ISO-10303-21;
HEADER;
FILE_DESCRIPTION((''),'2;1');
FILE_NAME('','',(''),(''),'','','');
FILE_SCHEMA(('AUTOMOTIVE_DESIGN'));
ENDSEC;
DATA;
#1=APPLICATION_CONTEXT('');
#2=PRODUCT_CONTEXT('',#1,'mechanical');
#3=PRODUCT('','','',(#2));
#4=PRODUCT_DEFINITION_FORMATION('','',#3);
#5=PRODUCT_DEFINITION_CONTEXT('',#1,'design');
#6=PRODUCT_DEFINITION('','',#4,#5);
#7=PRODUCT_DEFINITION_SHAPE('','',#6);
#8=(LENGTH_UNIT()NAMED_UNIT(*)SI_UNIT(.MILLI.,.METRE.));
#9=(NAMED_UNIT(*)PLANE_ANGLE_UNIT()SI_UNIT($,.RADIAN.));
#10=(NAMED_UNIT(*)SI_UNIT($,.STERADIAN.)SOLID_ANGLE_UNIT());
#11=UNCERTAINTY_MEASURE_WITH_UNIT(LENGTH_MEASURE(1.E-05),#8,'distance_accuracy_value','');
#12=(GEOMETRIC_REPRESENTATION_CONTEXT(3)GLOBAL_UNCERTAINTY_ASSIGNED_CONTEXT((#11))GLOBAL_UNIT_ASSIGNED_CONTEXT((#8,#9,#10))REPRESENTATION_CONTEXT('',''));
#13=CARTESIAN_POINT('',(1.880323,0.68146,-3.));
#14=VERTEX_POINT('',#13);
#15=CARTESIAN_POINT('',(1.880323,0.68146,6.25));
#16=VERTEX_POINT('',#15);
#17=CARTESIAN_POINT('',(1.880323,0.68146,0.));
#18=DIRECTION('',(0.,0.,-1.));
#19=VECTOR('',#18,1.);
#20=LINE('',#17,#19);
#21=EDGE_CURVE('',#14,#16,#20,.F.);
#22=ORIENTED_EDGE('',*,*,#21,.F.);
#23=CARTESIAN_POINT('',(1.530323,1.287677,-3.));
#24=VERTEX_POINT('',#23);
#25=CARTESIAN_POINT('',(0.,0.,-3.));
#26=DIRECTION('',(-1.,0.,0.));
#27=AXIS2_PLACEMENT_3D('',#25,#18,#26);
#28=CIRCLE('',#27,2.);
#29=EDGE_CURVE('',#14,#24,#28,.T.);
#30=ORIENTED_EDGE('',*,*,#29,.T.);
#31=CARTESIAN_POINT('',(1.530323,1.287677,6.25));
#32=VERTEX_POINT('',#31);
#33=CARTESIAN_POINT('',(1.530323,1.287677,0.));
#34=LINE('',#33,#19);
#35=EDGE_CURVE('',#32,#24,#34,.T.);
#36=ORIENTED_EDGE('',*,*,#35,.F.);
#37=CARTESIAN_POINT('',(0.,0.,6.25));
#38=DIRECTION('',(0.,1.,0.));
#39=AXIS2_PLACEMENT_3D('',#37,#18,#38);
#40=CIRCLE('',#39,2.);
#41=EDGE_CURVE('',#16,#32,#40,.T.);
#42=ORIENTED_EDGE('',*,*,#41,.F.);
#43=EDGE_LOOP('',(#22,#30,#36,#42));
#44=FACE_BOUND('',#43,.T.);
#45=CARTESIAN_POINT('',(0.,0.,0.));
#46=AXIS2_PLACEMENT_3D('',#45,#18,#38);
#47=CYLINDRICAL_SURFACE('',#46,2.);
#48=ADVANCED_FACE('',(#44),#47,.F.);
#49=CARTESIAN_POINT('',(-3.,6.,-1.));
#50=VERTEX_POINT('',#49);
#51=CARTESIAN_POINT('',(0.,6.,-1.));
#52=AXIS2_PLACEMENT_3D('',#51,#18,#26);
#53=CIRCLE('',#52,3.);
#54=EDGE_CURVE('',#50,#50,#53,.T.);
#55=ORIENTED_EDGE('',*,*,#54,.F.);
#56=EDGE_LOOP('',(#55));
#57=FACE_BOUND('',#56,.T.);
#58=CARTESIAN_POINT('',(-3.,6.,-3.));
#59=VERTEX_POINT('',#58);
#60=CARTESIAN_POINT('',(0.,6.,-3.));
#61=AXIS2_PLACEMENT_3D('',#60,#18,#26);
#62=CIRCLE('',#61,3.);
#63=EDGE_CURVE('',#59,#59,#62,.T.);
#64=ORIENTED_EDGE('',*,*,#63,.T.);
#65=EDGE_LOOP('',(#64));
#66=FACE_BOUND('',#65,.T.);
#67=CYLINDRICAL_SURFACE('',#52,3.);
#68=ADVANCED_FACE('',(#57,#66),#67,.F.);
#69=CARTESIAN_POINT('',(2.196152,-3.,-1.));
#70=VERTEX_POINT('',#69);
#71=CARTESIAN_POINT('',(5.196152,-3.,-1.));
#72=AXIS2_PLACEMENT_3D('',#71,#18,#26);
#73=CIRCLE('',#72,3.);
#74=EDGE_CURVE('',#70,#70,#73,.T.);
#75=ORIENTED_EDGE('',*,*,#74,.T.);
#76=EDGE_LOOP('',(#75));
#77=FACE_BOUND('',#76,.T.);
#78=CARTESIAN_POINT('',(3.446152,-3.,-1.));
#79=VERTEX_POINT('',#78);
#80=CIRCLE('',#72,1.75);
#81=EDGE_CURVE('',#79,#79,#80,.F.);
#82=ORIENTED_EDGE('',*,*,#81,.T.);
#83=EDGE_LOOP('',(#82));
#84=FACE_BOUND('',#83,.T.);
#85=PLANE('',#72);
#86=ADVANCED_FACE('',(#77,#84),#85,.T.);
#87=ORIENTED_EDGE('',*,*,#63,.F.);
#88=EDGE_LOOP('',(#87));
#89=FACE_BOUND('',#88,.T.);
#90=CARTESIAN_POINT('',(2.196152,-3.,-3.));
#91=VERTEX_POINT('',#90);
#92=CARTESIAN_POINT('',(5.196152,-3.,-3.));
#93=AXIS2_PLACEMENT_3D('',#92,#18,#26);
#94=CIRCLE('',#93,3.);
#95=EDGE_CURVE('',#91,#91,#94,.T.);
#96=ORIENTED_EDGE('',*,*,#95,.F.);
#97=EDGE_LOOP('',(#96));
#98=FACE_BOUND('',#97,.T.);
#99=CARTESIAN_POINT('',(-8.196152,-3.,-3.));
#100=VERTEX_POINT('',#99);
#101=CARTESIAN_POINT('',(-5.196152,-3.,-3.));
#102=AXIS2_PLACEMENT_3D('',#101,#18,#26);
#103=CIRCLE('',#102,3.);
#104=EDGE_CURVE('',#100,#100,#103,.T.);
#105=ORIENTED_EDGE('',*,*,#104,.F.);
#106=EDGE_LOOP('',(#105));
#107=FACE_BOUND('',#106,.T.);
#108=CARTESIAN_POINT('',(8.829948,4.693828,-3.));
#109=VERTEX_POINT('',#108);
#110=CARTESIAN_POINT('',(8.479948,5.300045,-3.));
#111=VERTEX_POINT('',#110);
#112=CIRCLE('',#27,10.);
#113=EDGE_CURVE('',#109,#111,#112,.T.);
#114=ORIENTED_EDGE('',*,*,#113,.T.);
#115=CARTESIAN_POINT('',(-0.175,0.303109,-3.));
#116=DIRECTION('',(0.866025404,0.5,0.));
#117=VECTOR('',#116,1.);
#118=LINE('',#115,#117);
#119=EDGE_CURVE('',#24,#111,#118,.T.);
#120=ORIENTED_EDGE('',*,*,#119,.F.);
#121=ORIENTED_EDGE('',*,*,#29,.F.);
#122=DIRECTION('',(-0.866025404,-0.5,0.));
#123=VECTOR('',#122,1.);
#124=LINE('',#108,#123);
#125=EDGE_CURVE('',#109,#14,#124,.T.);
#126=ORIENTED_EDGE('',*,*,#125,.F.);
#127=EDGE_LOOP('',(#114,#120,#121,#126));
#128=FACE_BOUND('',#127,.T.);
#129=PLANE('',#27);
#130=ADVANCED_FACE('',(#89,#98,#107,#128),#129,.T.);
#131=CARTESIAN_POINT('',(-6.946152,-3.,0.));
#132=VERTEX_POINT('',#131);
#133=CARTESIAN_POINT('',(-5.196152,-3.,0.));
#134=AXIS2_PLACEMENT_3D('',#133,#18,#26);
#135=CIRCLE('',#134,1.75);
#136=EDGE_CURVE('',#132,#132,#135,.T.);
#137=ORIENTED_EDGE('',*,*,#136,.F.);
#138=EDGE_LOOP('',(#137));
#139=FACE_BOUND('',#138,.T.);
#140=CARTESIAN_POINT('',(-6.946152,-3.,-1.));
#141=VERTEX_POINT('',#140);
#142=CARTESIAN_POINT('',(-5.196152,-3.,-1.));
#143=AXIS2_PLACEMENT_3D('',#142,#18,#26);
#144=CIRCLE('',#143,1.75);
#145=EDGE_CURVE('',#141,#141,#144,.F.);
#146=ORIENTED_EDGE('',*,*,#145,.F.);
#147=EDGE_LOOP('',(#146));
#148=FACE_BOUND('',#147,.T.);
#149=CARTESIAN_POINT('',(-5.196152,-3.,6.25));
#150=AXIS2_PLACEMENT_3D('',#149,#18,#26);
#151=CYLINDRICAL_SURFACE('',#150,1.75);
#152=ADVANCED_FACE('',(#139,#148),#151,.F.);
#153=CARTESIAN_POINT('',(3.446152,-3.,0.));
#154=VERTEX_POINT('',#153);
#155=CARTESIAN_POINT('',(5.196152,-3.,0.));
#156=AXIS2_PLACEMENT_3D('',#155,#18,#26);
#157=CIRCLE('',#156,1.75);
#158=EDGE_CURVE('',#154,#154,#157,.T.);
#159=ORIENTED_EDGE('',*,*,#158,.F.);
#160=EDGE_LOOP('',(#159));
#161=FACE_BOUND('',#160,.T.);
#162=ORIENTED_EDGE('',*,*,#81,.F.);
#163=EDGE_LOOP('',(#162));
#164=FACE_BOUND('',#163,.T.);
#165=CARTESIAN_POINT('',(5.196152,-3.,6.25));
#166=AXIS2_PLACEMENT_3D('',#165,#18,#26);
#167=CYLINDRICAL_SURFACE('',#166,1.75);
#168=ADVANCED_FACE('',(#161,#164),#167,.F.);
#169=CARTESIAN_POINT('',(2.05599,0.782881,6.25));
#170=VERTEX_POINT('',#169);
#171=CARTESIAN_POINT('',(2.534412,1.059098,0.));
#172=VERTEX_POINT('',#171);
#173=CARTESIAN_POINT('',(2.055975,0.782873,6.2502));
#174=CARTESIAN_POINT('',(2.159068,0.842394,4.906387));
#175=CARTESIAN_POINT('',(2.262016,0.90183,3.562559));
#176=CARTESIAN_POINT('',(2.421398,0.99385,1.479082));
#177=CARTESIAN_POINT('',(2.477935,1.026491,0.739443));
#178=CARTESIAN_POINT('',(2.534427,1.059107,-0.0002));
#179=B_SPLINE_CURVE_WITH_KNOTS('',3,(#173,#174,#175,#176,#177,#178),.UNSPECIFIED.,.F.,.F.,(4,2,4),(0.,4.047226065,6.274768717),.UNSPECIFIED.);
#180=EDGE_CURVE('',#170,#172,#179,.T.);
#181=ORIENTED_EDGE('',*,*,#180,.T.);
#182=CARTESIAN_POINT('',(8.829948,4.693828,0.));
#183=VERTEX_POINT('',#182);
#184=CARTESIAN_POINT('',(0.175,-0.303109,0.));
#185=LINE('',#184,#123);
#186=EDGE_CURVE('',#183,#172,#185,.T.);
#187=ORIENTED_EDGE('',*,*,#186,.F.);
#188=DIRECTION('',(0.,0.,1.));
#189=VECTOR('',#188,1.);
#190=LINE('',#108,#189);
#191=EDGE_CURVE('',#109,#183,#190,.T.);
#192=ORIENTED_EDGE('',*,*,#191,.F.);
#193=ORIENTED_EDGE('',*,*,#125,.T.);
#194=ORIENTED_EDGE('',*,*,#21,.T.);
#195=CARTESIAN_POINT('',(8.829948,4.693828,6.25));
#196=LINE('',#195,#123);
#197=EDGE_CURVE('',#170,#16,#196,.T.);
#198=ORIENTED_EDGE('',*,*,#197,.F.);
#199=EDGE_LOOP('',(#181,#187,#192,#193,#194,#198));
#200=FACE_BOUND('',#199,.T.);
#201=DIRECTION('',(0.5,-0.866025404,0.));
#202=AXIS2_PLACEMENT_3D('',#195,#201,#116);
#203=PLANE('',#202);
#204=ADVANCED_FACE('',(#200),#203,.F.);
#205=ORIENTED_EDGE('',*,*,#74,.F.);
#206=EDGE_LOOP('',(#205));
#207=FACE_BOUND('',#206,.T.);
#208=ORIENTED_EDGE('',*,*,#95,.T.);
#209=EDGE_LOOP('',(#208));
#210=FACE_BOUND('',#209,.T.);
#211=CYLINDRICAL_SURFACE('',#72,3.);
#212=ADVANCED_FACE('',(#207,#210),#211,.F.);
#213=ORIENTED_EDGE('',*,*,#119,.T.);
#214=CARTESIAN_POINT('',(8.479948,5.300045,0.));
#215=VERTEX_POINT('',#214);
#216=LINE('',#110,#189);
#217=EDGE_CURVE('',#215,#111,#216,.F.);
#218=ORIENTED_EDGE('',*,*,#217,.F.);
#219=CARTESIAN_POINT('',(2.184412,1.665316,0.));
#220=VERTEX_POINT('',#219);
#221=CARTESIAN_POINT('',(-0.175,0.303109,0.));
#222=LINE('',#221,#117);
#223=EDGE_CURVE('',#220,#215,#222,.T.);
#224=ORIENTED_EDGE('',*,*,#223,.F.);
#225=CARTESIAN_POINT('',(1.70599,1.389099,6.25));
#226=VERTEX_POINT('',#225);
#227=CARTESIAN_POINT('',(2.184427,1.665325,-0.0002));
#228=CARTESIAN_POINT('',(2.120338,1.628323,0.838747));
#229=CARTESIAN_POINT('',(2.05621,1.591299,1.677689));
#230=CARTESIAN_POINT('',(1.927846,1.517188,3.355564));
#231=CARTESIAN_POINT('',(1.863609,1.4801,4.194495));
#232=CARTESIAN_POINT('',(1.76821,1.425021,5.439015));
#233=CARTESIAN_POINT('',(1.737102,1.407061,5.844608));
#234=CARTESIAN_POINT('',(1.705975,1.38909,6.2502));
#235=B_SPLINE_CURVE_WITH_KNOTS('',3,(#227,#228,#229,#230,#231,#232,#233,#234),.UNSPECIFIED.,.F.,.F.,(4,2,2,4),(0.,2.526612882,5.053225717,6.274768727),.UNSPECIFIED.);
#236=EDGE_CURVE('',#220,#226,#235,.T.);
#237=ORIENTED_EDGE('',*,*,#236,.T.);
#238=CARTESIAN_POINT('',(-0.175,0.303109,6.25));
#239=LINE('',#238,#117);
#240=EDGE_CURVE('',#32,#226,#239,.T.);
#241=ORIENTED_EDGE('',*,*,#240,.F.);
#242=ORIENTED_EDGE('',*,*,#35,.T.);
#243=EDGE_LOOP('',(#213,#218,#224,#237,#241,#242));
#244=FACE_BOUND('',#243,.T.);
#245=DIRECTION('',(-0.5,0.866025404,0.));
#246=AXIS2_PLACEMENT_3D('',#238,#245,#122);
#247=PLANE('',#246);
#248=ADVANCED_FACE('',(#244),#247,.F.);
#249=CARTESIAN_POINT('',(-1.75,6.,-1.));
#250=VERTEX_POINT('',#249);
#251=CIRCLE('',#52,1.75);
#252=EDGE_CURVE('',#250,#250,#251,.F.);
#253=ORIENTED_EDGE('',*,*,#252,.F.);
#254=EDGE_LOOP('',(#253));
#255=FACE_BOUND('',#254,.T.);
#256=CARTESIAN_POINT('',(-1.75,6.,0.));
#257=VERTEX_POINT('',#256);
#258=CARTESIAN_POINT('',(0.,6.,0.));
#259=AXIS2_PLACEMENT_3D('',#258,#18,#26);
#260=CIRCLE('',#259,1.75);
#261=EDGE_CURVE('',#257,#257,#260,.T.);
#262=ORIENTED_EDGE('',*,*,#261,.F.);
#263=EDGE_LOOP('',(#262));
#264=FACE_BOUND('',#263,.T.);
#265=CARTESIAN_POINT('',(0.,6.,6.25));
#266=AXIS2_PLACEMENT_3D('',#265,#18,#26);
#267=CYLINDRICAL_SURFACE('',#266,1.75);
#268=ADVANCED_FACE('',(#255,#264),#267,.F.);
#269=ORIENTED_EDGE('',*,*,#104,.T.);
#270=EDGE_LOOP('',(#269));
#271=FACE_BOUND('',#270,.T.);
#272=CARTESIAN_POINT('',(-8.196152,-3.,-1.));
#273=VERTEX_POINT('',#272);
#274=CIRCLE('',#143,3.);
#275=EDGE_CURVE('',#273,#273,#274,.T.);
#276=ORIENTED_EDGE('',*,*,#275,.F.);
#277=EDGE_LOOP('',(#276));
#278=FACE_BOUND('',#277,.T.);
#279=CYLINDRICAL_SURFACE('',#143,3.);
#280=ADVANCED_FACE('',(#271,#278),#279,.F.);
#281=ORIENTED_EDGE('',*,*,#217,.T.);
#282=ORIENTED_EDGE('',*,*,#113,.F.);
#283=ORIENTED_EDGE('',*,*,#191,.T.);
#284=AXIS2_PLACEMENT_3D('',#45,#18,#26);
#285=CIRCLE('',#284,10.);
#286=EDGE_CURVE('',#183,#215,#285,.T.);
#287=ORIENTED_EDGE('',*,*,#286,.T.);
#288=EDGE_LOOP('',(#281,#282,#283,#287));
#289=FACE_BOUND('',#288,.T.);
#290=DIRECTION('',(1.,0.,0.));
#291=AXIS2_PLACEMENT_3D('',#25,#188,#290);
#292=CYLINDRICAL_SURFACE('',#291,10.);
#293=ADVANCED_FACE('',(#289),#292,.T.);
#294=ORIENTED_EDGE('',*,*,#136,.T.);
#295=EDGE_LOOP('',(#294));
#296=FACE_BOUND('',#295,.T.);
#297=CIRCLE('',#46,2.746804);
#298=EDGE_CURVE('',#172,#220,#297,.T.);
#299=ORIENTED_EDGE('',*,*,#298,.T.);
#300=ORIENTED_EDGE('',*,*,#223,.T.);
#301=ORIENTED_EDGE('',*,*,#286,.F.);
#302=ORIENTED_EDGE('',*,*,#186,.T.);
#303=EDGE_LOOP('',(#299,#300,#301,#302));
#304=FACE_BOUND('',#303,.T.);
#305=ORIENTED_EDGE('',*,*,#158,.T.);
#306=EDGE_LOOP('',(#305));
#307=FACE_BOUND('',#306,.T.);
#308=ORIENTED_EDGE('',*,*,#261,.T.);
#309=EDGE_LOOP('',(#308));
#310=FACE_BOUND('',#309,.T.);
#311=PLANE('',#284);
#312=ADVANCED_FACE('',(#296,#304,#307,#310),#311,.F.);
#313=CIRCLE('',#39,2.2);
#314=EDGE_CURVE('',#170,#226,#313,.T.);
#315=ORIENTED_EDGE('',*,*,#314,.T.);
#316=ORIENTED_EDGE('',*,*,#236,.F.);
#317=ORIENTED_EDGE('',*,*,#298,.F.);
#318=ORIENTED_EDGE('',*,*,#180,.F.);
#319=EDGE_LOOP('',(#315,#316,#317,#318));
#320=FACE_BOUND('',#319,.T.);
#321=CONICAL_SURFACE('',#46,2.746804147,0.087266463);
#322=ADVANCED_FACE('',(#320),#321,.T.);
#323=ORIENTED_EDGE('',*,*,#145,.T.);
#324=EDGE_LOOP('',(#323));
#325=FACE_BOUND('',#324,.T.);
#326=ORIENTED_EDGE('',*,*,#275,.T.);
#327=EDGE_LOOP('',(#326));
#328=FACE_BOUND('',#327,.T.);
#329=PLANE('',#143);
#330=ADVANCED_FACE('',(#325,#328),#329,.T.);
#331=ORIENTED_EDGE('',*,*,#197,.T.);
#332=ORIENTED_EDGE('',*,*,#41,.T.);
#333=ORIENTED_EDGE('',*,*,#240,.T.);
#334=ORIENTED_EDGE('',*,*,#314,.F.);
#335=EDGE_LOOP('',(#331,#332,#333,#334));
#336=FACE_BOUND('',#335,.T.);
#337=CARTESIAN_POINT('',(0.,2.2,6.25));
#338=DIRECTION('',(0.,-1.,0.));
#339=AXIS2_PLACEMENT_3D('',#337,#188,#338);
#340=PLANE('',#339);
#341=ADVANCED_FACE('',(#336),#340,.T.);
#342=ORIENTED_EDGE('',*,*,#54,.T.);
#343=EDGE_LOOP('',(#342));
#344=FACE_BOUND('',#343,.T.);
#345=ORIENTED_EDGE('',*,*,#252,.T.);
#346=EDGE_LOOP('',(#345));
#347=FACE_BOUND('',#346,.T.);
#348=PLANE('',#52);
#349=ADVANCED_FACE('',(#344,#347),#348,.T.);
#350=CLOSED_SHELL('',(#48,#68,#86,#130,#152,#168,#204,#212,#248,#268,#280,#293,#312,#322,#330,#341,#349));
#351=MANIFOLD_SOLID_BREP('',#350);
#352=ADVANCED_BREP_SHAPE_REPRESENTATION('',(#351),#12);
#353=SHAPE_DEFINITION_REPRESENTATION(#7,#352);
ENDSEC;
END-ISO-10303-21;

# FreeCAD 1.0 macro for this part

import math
import FreeCAD as App
import Part
import Sketcher
from FreeCAD import Vector
Q = App.Units.Quantity


def add_polygon(sketch, points):
    """Adds a closed chain of lines whose ends are joined by coincident constraints."""
    first, n = sketch.GeometryCount, len(points)
    for a, b in zip(points, points[1:] + points[:1]):
        sketch.addGeometry(Part.LineSegment(App.Vector(*a, 0), App.Vector(*b, 0)), False)
    for i in range(n):
        sketch.addConstraint(Sketcher.Constraint("Coincident", first + i, 2, first + (i + 1) % n, 1))

doc = App.newDocument("Part")
params = doc.addObject("Spreadsheet::Sheet", "Params")
for row, (alias, value) in enumerate([
    ("sketch1_width", "0.2 mm"),
    ("sketch1_height", "6.25 mm"),
    ("revolution_angle", "360 deg"),
    ("sketch2_diameter", "20 mm"),
    ("sketch2_diameter2", "4 mm"),
    ("pad1_length", "3 mm"),
    ("sketch3_diameter", "3.5 mm"),
    ("sketch4_diameter", "6 mm"),
    ("pocket2_length", "2 mm"),
    ("sketch5_radius", "10 mm"),
    ("sketch5_length", "0.7 mm"),
], start=1):
    params.set(f"A{row}", alias)
    params.set(f"B{row}", "=" + value)
    params.setAlias(f"B{row}", alias)

body = doc.addObject("PartDesign::Body", "Body")

# Sketch on YZ plane
sketch1 = body.newObject("Sketcher::SketchObject", "Sketch")
sketch1.AttachmentSupport = (doc.getObject("YZ_Plane"), [""])
sketch1.MapMode = "FlatFace"
add_polygon(sketch1, [(2, 0), (2.75, 0), (2.2, 6.25), (2, 6.25)])  # lines 0-3
sketch1.addConstraint(Sketcher.Constraint("Horizontal", 0))
sketch1.addConstraint(Sketcher.Constraint("Horizontal", 2))
sketch1.addConstraint(Sketcher.Constraint("Vertical", 3))
sketch1.addConstraint(Sketcher.Constraint("PointOnObject", 0, 2, -1))
sketch1.addConstraint(Sketcher.Constraint("Angle", 1, Q("95 deg")))
sketch1.addConstraint(Sketcher.Constraint("DistanceX", 2, 2, 2, 1, Q("0.2 mm")))
sketch1.addConstraint(Sketcher.Constraint("DistanceX", -1, 1, 2, 2, Q("2 mm")))
sketch1.addConstraint(Sketcher.Constraint("DistanceY", 3, 2, 3, 1, Q("6.25 mm")))
sketch1.setExpression("Constraints[9]", "Params.sketch1_width")
sketch1.setExpression("Constraints[11]", "Params.sketch1_height")
revolution = body.newObject("PartDesign::Revolution", "Revolution")
revolution.Profile = sketch1
revolution.ReferenceAxis = (sketch1, ["V_Axis"])
revolution.setExpression("Angle", "Params.revolution_angle")

# Sketch on XY plane
sketch2 = body.newObject("Sketcher::SketchObject", "Sketch001")
sketch2.AttachmentSupport = (doc.getObject("XY_Plane"), [""])
sketch2.MapMode = "FlatFace"
sketch2.addGeometry(Part.Circle(Vector(0, 0, 0), Vector(0, 0, 1), 10), False)
sketch2.addGeometry(Part.Circle(Vector(0, 0, 0), Vector(0, 0, 1), 2), False)
sketch2.addConstraint(Sketcher.Constraint("Coincident", 0, 3, -1, 1))
sketch2.addConstraint(Sketcher.Constraint("Coincident", 1, 3, -1, 1))
sketch2.addConstraint(Sketcher.Constraint("Diameter", 0, Q("20 mm")))
sketch2.addConstraint(Sketcher.Constraint("Diameter", 1, Q("4 mm")))
sketch2.setExpression("Constraints[2]", "Params.sketch2_diameter")
sketch2.setExpression("Constraints[3]", "Params.sketch2_diameter2")
pad1 = body.newObject("PartDesign::Pad", "Pad")
pad1.Profile = sketch2
pad1.setExpression("Length", "Params.pad1_length")
pad1.Reversed = True

# Sketch on XY plane
sketch3 = body.newObject("Sketcher::SketchObject", "Sketch002")
sketch3.AttachmentSupport = (doc.getObject("XY_Plane"), [""])
sketch3.MapMode = "FlatFace"
sketch3.AttachmentOffset = App.Placement(Vector(0, 0, -3), App.Rotation())
sketch3.addGeometry(Part.Circle(Vector(0, 6, 0), Vector(0, 0, 1), 1.8), False)
sketch3.addGeometry(Part.Circle(Vector(5.2, -3, 0), Vector(0, 0, 1), 1.8), False)
sketch3.addGeometry(Part.Circle(Vector(-5.2, -3, 0), Vector(0, 0, 1), 1.8), False)
sketch3.addConstraint(Sketcher.Constraint("Equal", 0, 1))
sketch3.addConstraint(Sketcher.Constraint("Equal", 1, 2))
sketch3.addConstraint(Sketcher.Constraint("Symmetric", 1, 3, 2, 3, -2))
sketch3.addConstraint(Sketcher.Constraint("PointOnObject", 0, 3, -2))
sketch3.addConstraint(Sketcher.Constraint("Diameter", 0, Q("3.5 mm")))
sketch3.addConstraint(Sketcher.Constraint("DistanceY", -1, 1, 0, 3, Q("6 mm")))
sketch3.addConstraint(Sketcher.Constraint("DistanceY", 1, 3, -1, 1, Q("3 mm")))
sketch3.addConstraint(Sketcher.Constraint("DistanceX", -1, 1, 1, 3, Q("5.196152 mm")))
sketch3.setExpression("Constraints[4]", "Params.sketch3_diameter")
pocket1 = body.newObject("PartDesign::Pocket", "Pocket")
pocket1.Profile = sketch3
pocket1.Type = "ThroughAll"
pocket1.Reversed = True

# Sketch on XY plane
sketch4 = body.newObject("Sketcher::SketchObject", "Sketch003")
sketch4.AttachmentSupport = (doc.getObject("XY_Plane"), [""])
sketch4.MapMode = "FlatFace"
sketch4.AttachmentOffset = App.Placement(Vector(0, 0, -3), App.Rotation())
sketch4.addGeometry(Part.Circle(Vector(0, 6, 0), Vector(0, 0, 1), 3), False)
sketch4.addGeometry(Part.Circle(Vector(-5.2, -3, 0), Vector(0, 0, 1), 3), False)
sketch4.addGeometry(Part.Circle(Vector(5.2, -3, 0), Vector(0, 0, 1), 3), False)
sketch4.addConstraint(Sketcher.Constraint("Equal", 0, 1))
sketch4.addConstraint(Sketcher.Constraint("Equal", 1, 2))
sketch4.addConstraint(Sketcher.Constraint("Symmetric", 1, 3, 2, 3, -2))
sketch4.addConstraint(Sketcher.Constraint("PointOnObject", 0, 3, -2))
sketch4.addConstraint(Sketcher.Constraint("Diameter", 0, Q("6 mm")))
sketch4.addConstraint(Sketcher.Constraint("DistanceY", -1, 1, 0, 3, Q("6 mm")))
sketch4.addConstraint(Sketcher.Constraint("DistanceY", 1, 3, -1, 1, Q("3 mm")))
sketch4.addConstraint(Sketcher.Constraint("DistanceX", 1, 3, -1, 1, Q("5.196152 mm")))
sketch4.setExpression("Constraints[4]", "Params.sketch4_diameter")
pocket2 = body.newObject("PartDesign::Pocket", "Pocket001")
pocket2.Profile = sketch4
pocket2.setExpression("Length", "Params.pocket2_length")
pocket2.Reversed = True

# Sketch on XY plane
sketch5 = body.newObject("Sketcher::SketchObject", "Sketch004")
sketch5.AttachmentSupport = (doc.getObject("XY_Plane"), [""])
sketch5.MapMode = "FlatFace"
sketch5.AttachmentOffset = App.Placement(Vector(0, 0, -3), App.Rotation())
sketch5.addGeometry(Part.LineSegment(Vector(8.8, 4.7, 0), Vector(0.2, -0.3, 0)), False)
sketch5.addGeometry(Part.LineSegment(Vector(0.2, -0.3, 0), Vector(-0.2, 0.3, 0)), False)
sketch5.addGeometry(Part.LineSegment(Vector(-0.2, 0.3, 0), Vector(8.5, 5.3, 0)), False)
sketch5.addGeometry(Part.ArcOfCircle(Part.Circle(Vector(0, 0, 0), Vector(0, 0, 1), 10), math.radians(27.99), math.radians(32.01)), False)
sketch5.addConstraint(Sketcher.Constraint("Coincident", 0, 2, 1, 1))
sketch5.addConstraint(Sketcher.Constraint("Coincident", 1, 2, 2, 1))
sketch5.addConstraint(Sketcher.Constraint("Coincident", 2, 2, 3, 2))
sketch5.addConstraint(Sketcher.Constraint("Coincident", 3, 1, 0, 1))
sketch5.addConstraint(Sketcher.Constraint("Coincident", 3, 3, -1, 1))
sketch5.addConstraint(Sketcher.Constraint("Symmetric", 0, 2, 1, 2, -1, 1))
sketch5.addConstraint(Sketcher.Constraint("Perpendicular", 0, 1))
sketch5.addConstraint(Sketcher.Constraint("Perpendicular", 1, 2))
sketch5.addConstraint(Sketcher.Constraint("Radius", 3, Q("10 mm")))
sketch5.addConstraint(Sketcher.Constraint("Angle", 0, Q("-150 deg")))
sketch5.addConstraint(Sketcher.Constraint("Distance", 1, Q("0.7 mm")))
sketch5.setExpression("Constraints[8]", "Params.sketch5_radius")
sketch5.setExpression("Constraints[10]", "Params.sketch5_length")
pocket3 = body.newObject("PartDesign::Pocket", "Pocket002")
pocket3.Profile = sketch5
pocket3.Type = "ThroughAll"
pocket3.Reversed = True

doc.recompute()
